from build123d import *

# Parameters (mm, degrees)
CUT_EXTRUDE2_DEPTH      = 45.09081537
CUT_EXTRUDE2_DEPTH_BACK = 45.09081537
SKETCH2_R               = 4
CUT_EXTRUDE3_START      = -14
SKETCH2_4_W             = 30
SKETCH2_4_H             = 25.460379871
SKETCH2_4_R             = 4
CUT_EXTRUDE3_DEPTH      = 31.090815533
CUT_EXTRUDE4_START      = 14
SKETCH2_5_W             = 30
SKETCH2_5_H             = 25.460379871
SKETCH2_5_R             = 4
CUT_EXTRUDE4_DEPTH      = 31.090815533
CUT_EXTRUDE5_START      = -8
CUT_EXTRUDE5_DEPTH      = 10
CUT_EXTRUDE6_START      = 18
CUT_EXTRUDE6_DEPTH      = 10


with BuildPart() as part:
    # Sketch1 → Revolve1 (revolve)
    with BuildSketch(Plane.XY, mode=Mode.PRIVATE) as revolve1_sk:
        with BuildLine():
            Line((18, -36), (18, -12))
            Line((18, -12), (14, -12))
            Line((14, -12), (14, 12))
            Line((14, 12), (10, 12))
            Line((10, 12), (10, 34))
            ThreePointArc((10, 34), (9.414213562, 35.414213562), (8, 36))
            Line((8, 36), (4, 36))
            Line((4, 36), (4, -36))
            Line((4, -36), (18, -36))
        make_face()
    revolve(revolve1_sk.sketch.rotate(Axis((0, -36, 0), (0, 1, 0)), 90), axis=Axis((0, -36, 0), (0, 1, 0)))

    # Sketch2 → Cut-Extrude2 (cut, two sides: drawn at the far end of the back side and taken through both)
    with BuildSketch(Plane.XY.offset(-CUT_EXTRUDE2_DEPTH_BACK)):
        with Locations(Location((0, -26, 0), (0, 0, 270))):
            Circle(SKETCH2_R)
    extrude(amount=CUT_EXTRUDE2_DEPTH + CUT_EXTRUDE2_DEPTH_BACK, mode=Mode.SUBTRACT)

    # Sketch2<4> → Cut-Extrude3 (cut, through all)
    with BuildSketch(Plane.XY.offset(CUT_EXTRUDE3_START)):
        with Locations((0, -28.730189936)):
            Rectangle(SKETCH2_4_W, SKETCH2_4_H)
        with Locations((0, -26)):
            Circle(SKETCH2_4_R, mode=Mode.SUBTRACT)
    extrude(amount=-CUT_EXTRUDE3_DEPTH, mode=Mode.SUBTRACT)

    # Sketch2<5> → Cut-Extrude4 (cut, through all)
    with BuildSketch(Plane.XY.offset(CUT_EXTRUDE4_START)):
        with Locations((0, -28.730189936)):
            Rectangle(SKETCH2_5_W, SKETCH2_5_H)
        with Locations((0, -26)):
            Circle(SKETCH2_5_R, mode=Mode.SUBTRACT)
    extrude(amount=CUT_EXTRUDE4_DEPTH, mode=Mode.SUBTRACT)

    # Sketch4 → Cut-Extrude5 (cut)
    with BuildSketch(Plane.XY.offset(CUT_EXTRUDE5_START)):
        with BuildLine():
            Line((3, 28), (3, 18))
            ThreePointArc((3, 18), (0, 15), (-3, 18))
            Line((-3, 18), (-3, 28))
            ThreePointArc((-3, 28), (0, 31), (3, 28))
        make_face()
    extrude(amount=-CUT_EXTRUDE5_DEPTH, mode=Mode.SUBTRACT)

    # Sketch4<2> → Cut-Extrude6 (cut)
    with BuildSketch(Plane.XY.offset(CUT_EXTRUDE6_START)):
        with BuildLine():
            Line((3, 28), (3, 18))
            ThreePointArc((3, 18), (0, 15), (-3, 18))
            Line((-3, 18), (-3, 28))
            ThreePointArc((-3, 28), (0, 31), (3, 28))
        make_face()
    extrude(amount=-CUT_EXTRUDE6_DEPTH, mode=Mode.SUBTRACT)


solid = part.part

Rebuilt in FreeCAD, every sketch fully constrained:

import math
import FreeCAD as App
import Part
import Sketcher
from FreeCAD import Vector


def add_polygon(sketch, points):
    """Adds a closed chain of lines whose ends are joined by coincident constraints."""
    first, n = sketch.GeometryCount, len(points)
    for a, b in zip(points, points[1:] + points[:1]):
        sketch.addGeometry(Part.LineSegment(App.Vector(*a, 0), App.Vector(*b, 0)), False)
    for i in range(n):
        sketch.addConstraint(Sketcher.Constraint("Coincident", first + i, 2, first + (i + 1) % n, 1))

doc = App.newDocument("Part")
body = doc.addObject("PartDesign::Body", "Body")

# Sketch on XY plane
sketch1 = body.newObject("Sketcher::SketchObject", "Sketch")
sketch1.AttachmentSupport = (doc.getObject("XY_Plane"), [""])
sketch1.MapMode = "FlatFace"
sketch1.addGeometry([
    Part.LineSegment(Vector(18, -36, 0), Vector(18, -12, 0)),  # 0
    Part.LineSegment(Vector(18, -12, 0), Vector(14, -12, 0)),  # 1
    Part.LineSegment(Vector(14, -12, 0), Vector(14, 12, 0)),  # 2
    Part.LineSegment(Vector(14, 12, 0), Vector(10, 12, 0)),  # 3
    Part.LineSegment(Vector(10, 12, 0), Vector(10, 34, 0)),  # 4
    Part.ArcOfCircle(Part.Circle(Vector(8, 34, 0), Vector(0, 0, 1), 2), math.radians(0), math.radians(90)),  # 5
    Part.LineSegment(Vector(8, 36, 0), Vector(4, 36, 0)),  # 6
    Part.LineSegment(Vector(4, 36, 0), Vector(4, -36, 0)),  # 7
    Part.LineSegment(Vector(4, -36, 0), Vector(18, -36, 0)),  # 8
], False)
sketch1.addConstraint([
    Sketcher.Constraint("Coincident", 0, 2, 1, 1),
    Sketcher.Constraint("Coincident", 1, 2, 2, 1),
    Sketcher.Constraint("Coincident", 2, 2, 3, 1),
    Sketcher.Constraint("Coincident", 3, 2, 4, 1),
    Sketcher.Constraint("Tangent", 4, 2, 5, 1),
    Sketcher.Constraint("Tangent", 5, 2, 6, 1),
    Sketcher.Constraint("Coincident", 6, 2, 7, 1),
    Sketcher.Constraint("Coincident", 7, 2, 8, 1),
    Sketcher.Constraint("Coincident", 8, 2, 0, 1),
    Sketcher.Constraint("Vertical", 0),
    Sketcher.Constraint("Horizontal", 1),
    Sketcher.Constraint("Vertical", 2),
    Sketcher.Constraint("Horizontal", 3),
    Sketcher.Constraint("Vertical", 4),
    Sketcher.Constraint("Horizontal", 6),
    Sketcher.Constraint("Vertical", 7),
    Sketcher.Constraint("Horizontal", 8),
    Sketcher.Constraint("Equal", 1, 3),
    Sketcher.Constraint("Equal", 3, 6),
    Sketcher.Constraint("Equal", 0, 2),
    Sketcher.Constraint("Radius", 5, 2.0),
    Sketcher.Constraint("DistanceX", 1, 2, 1, 1, 4.0),
    Sketcher.Constraint("DistanceY", 0, 1, 0, 2, 24.0),
    Sketcher.Constraint("DistanceY", 4, 1, 4, 2, 22.0),
    Sketcher.Constraint("DistanceX", -1, 1, 5, 3, 8.0),
    Sketcher.Constraint("DistanceY", -1, 1, 5, 3, 34.0),
])
revolution = body.newObject("PartDesign::Revolution", "Revolution")
revolution.Profile = sketch1
revolution.ReferenceAxis = (sketch1, ["V_Axis"])
revolution.Angle = 360

# Sketch on XY plane
sketch2 = body.newObject("Sketcher::SketchObject", "Sketch001")
sketch2.AttachmentSupport = (doc.getObject("XY_Plane"), [""])
sketch2.MapMode = "FlatFace"
sketch2.addGeometry(Part.Circle(Vector(0, -26, 0), Vector(0, 0, 1), 4), False)
sketch2.addConstraint([
    Sketcher.Constraint("PointOnObject", 0, 3, -2),
    Sketcher.Constraint("Diameter", 0, 8.0),
    Sketcher.Constraint("DistanceY", 0, 3, -1, 1, 26.0),
])
pocket1 = body.newObject("PartDesign::Pocket", "Pocket")
pocket1.Profile = sketch2
pocket1.Type = "ThroughAll"
pocket1.Midplane = True

# Sketch on XY plane
sketch3 = body.newObject("Sketcher::SketchObject", "Sketch002")
sketch3.AttachmentSupport = (doc.getObject("XY_Plane"), [""])
sketch3.MapMode = "FlatFace"
sketch3.AttachmentOffset = App.Placement(Vector(0, 0, -14), App.Rotation())
add_polygon(sketch3, [(-15, -16), (-15, -41.5), (15, -41.5), (15, -16)])  # lines 0-3
sketch3.addGeometry(Part.Circle(Vector(0, -26, 0), Vector(0, 0, 1), 4), False)  # 4
sketch3.addConstraint([
    Sketcher.Constraint("Vertical", 0),
    Sketcher.Constraint("Horizontal", 1),
    Sketcher.Constraint("Vertical", 2),
    Sketcher.Constraint("Horizontal", 3),
    Sketcher.Constraint("PointOnObject", 4, 3, -2),
    Sketcher.Constraint("Diameter", 4, 8.0),
    Sketcher.Constraint("DistanceX", 1, 1, 1, 2, 30.0),
    Sketcher.Constraint("DistanceY", 4, 3, -1, 1, 26.0),
    Sketcher.Constraint("DistanceX", 0, 2, -1, 1, 15.0),
    Sketcher.Constraint("DistanceY", 2, 2, -1, 1, 16.0),
    Sketcher.Constraint("DistanceY", 0, 2, 0, 1, 25.46038),
])
pocket2 = body.newObject("PartDesign::Pocket", "Pocket001")
pocket2.Profile = sketch3
pocket2.Type = "ThroughAll"

# Sketch on XY plane
sketch4 = body.newObject("Sketcher::SketchObject", "Sketch003")
sketch4.AttachmentSupport = (doc.getObject("XY_Plane"), [""])
sketch4.MapMode = "FlatFace"
sketch4.AttachmentOffset = App.Placement(Vector(0, 0, 14), App.Rotation())
add_polygon(sketch4, [(-15, -16), (-15, -41.5), (15, -41.5), (15, -16)])  # lines 0-3
sketch4.addGeometry(Part.Circle(Vector(0, -26, 0), Vector(0, 0, 1), 4), False)  # 4
sketch4.addConstraint([
    Sketcher.Constraint("Vertical", 0),
    Sketcher.Constraint("Horizontal", 1),
    Sketcher.Constraint("Vertical", 2),
    Sketcher.Constraint("Horizontal", 3),
    Sketcher.Constraint("PointOnObject", 4, 3, -2),
    Sketcher.Constraint("Diameter", 4, 8.0),
    Sketcher.Constraint("DistanceX", 1, 1, 1, 2, 30.0),
    Sketcher.Constraint("DistanceY", 4, 3, -1, 1, 26.0),
    Sketcher.Constraint("DistanceX", 0, 2, -1, 1, 15.0),
    Sketcher.Constraint("DistanceY", 2, 2, -1, 1, 16.0),
    Sketcher.Constraint("DistanceY", 0, 2, 0, 1, 25.46038),
])
pocket3 = body.newObject("PartDesign::Pocket", "Pocket002")
pocket3.Profile = sketch4
pocket3.Type = "ThroughAll"
pocket3.Reversed = True

# Sketch on XY plane
sketch5 = body.newObject("Sketcher::SketchObject", "Sketch004")
sketch5.AttachmentSupport = (doc.getObject("XY_Plane"), [""])
sketch5.MapMode = "FlatFace"
sketch5.AttachmentOffset = App.Placement(Vector(0, 0, -8), App.Rotation())
sketch5.addGeometry([
    Part.LineSegment(Vector(3, 18, 0), Vector(3, 28, 0)),
    Part.ArcOfCircle(Part.Circle(Vector(0, 28, 0), Vector(0, 0, 1), 3), math.radians(0), math.radians(180)),
    Part.LineSegment(Vector(-3, 28, 0), Vector(-3, 18, 0)),
    Part.ArcOfCircle(Part.Circle(Vector(0, 18, 0), Vector(0, 0, 1), 3), math.radians(180), math.radians(360)),
], False)
sketch5.addConstraint([
    Sketcher.Constraint("Tangent", 0, 2, 1, 1),
    Sketcher.Constraint("Tangent", 1, 2, 2, 1),
    Sketcher.Constraint("Tangent", 2, 2, 3, 1),
    Sketcher.Constraint("Tangent", 3, 2, 0, 1),
    Sketcher.Constraint("Vertical", 0),
    Sketcher.Constraint("Vertical", 2),
    Sketcher.Constraint("PointOnObject", 1, 3, -2),
    Sketcher.Constraint("Radius", 1, 3.0),
    Sketcher.Constraint("DistanceY", 0, 1, 0, 2, 10.0),
    Sketcher.Constraint("DistanceY", -1, 1, 1, 3, 28.0),
])
pocket4 = body.newObject("PartDesign::Pocket", "Pocket003")
pocket4.Profile = sketch5
pocket4.Length = 10

# Sketch on XY plane
sketch6 = body.newObject("Sketcher::SketchObject", "Sketch005")
sketch6.AttachmentSupport = (doc.getObject("XY_Plane"), [""])
sketch6.MapMode = "FlatFace"
sketch6.AttachmentOffset = App.Placement(Vector(0, 0, 18), App.Rotation())
sketch6.addGeometry([
    Part.LineSegment(Vector(3, 18, 0), Vector(3, 28, 0)),
    Part.ArcOfCircle(Part.Circle(Vector(0, 28, 0), Vector(0, 0, 1), 3), math.radians(0), math.radians(180)),
    Part.LineSegment(Vector(-3, 28, 0), Vector(-3, 18, 0)),
    Part.ArcOfCircle(Part.Circle(Vector(0, 18, 0), Vector(0, 0, 1), 3), math.radians(180), math.radians(360)),
], False)
sketch6.addConstraint([
    Sketcher.Constraint("Tangent", 0, 2, 1, 1),
    Sketcher.Constraint("Tangent", 1, 2, 2, 1),
    Sketcher.Constraint("Tangent", 2, 2, 3, 1),
    Sketcher.Constraint("Tangent", 3, 2, 0, 1),
    Sketcher.Constraint("Vertical", 0),
    Sketcher.Constraint("Vertical", 2),
    Sketcher.Constraint("PointOnObject", 1, 3, -2),
    Sketcher.Constraint("Radius", 1, 3.0),
    Sketcher.Constraint("DistanceY", 0, 1, 0, 2, 10.0),
    Sketcher.Constraint("DistanceY", -1, 1, 1, 3, 28.0),
])
pocket5 = body.newObject("PartDesign::Pocket", "Pocket004")
pocket5.Profile = sketch6
pocket5.Length = 10

doc.recompute()
